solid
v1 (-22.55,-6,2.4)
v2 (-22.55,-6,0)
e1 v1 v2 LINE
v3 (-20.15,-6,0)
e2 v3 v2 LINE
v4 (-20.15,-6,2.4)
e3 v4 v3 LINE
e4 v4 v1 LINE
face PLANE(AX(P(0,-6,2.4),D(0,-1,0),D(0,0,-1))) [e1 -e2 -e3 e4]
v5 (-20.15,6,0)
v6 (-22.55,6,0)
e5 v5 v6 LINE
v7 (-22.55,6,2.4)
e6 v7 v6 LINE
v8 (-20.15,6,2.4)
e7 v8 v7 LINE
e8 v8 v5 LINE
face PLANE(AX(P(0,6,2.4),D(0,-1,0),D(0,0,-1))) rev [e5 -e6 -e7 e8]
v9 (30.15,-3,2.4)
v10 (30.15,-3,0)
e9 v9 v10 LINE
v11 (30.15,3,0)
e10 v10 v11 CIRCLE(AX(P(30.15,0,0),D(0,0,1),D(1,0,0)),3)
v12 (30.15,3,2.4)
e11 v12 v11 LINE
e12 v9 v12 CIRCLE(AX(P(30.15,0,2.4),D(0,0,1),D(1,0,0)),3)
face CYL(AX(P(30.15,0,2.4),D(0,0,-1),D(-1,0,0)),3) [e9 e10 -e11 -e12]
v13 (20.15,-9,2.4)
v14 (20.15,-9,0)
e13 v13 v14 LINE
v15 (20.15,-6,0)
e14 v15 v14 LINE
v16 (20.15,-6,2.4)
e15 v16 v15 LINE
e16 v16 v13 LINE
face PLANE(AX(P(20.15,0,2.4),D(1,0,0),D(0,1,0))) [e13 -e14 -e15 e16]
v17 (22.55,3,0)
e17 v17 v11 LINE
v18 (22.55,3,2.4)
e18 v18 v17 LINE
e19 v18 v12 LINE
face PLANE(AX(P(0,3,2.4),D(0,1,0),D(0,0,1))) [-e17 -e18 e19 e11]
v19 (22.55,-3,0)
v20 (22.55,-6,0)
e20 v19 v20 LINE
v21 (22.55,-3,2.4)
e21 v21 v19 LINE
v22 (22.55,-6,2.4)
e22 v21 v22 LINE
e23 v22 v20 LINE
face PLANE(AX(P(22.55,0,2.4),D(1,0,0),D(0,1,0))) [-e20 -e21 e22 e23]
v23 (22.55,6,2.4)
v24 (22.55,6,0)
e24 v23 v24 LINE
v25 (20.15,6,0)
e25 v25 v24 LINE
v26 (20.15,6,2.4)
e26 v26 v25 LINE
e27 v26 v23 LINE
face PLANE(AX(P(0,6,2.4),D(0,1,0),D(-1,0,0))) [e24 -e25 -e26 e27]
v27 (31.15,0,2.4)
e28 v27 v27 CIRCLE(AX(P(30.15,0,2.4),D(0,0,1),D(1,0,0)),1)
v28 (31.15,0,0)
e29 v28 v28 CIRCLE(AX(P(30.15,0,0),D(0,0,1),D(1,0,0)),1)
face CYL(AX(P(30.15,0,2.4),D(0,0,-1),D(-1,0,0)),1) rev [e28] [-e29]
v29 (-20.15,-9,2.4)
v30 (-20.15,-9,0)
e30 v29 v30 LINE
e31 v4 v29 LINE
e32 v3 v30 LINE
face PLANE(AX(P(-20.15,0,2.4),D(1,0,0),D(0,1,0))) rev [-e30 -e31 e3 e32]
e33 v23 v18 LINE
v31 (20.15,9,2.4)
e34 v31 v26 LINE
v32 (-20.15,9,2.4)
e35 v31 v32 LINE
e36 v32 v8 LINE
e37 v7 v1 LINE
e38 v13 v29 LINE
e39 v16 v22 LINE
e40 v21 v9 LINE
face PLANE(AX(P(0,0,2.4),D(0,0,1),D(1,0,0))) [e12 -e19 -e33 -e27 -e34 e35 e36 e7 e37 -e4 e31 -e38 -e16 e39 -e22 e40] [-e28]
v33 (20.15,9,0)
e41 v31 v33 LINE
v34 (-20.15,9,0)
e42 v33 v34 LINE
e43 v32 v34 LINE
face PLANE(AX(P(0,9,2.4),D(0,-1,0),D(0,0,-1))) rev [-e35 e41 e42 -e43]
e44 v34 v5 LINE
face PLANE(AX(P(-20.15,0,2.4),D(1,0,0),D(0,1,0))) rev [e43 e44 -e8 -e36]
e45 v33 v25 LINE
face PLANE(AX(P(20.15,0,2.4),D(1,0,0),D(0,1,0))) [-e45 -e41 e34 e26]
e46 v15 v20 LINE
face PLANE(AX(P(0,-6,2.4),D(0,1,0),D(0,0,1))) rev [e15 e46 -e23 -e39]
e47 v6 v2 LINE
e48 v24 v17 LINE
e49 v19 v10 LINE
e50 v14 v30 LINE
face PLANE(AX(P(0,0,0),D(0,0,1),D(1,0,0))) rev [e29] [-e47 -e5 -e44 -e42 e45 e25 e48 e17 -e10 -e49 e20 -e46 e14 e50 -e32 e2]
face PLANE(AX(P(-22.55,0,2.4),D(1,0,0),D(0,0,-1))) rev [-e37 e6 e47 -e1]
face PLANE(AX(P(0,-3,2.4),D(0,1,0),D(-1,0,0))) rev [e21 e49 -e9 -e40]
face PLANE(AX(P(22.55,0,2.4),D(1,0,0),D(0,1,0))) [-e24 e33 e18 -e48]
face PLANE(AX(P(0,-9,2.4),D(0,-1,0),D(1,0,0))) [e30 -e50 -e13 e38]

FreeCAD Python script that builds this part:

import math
import FreeCAD as App
import Part
import Sketcher
from FreeCAD import Vector

doc = App.newDocument("Part")
body = doc.addObject("PartDesign::Body", "Body")

# Sketch on XY plane
sketch1 = doc.addObject("Sketcher::SketchObject", "Sketch")
body.addObject(sketch1)
sketch1.AttachmentSupport = (doc.XY_Plane, [""])
sketch1.MapMode = "FlatFace"
sketch1.addGeometry([
    Part.LineSegment(Vector(22.6, -3, 0), Vector(30.1, -3, 0)),  # 0
    Part.ArcOfCircle(Part.Circle(Vector(30.1, 0, 0), Vector(0, 0, 1), 3), math.radians(-90), math.radians(90)),  # 1
    Part.LineSegment(Vector(30.1, 3, 0), Vector(22.6, 3, 0)),  # 2
    Part.LineSegment(Vector(22.6, 3, 0), Vector(22.6, 6, 0)),  # 3
    Part.LineSegment(Vector(22.6, 6, 0), Vector(20.1, 6, 0)),  # 4
    Part.LineSegment(Vector(20.1, 6, 0), Vector(20.1, 9, 0)),  # 5
    Part.LineSegment(Vector(20.1, 9, 0), Vector(-20.1, 9, 0)),  # 6
    Part.LineSegment(Vector(-20.1, 9, 0), Vector(-20.1, 6, 0)),  # 7
    Part.LineSegment(Vector(-20.1, 6, 0), Vector(-22.6, 6, 0)),  # 8
    Part.LineSegment(Vector(-22.6, 6, 0), Vector(-22.6, -6, 0)),  # 9
    Part.LineSegment(Vector(-22.6, -6, 0), Vector(-20.1, -6, 0)),  # 10
    Part.LineSegment(Vector(-20.1, -6, 0), Vector(-20.1, -9, 0)),  # 11
    Part.LineSegment(Vector(-20.1, -9, 0), Vector(20.1, -9, 0)),  # 12
    Part.LineSegment(Vector(20.1, -9, 0), Vector(20.1, -6, 0)),  # 13
    Part.LineSegment(Vector(20.1, -6, 0), Vector(22.6, -6, 0)),  # 14
    Part.LineSegment(Vector(22.6, -6, 0), Vector(22.6, -3, 0)),  # 15
    Part.Circle(Vector(30.1, 0, 0), Vector(0, 0, 1), 1),  # 16
], False)
sketch1.addConstraint([
    Sketcher.Constraint("Tangent", 0, 2, 1, 1),
    Sketcher.Constraint("Tangent", 1, 2, 2, 1),
    Sketcher.Constraint("Coincident", 2, 2, 3, 1),
    Sketcher.Constraint("Coincident", 3, 2, 4, 1),
    Sketcher.Constraint("Coincident", 4, 2, 5, 1),
    Sketcher.Constraint("Coincident", 5, 2, 6, 1),
    Sketcher.Constraint("Coincident", 6, 2, 7, 1),
    Sketcher.Constraint("Coincident", 7, 2, 8, 1),
    Sketcher.Constraint("Coincident", 8, 2, 9, 1),
    Sketcher.Constraint("Coincident", 9, 2, 10, 1),
    Sketcher.Constraint("Coincident", 10, 2, 11, 1),
    Sketcher.Constraint("Coincident", 11, 2, 12, 1),
    Sketcher.Constraint("Coincident", 12, 2, 13, 1),
    Sketcher.Constraint("Coincident", 13, 2, 14, 1),
    Sketcher.Constraint("Coincident", 14, 2, 15, 1),
    Sketcher.Constraint("Coincident", 15, 2, 0, 1),
    Sketcher.Constraint("Horizontal", 0),
    Sketcher.Constraint("Horizontal", 2),
    Sketcher.Constraint("Vertical", 3),
    Sketcher.Constraint("Horizontal", 4),
    Sketcher.Constraint("Vertical", 5),
    Sketcher.Constraint("Horizontal", 6),
    Sketcher.Constraint("Vertical", 7),
    Sketcher.Constraint("Horizontal", 8),
    Sketcher.Constraint("Vertical", 9),
    Sketcher.Constraint("Horizontal", 10),
    Sketcher.Constraint("Vertical", 11),
    Sketcher.Constraint("Horizontal", 12),
    Sketcher.Constraint("Vertical", 13),
    Sketcher.Constraint("Horizontal", 14),
    Sketcher.Constraint("Vertical", 15),
    Sketcher.Constraint("Coincident", 16, 3, 1, 3),
    Sketcher.Constraint("Symmetric", 3, 2, 9, 2, -1, 1),
    Sketcher.Constraint("Symmetric", 5, 2, 11, 2, -1, 1),
    Sketcher.Constraint("Symmetric", 7, 2, 13, 2, -1, 1),
    Sketcher.Constraint("Symmetric", 4, 2, 7, 2, -2),
    Sketcher.Constraint("Symmetric", 2, 2, 15, 2, -1),
    Sketcher.Constraint("Equal", 3, 5),
    Sketcher.Constraint("Diameter", 16, 2.0),
    Sketcher.Constraint("Radius", 1, 3.0),
    Sketcher.Constraint("DistanceY", 3, 1, 3, 2, 3.0),
    Sketcher.Constraint("DistanceX", 0, 1, 0, 2, 7.6),
    Sketcher.Constraint("DistanceX", 4, 2, 4, 1, 2.4),
    Sketcher.Constraint("DistanceX", 6, 2, 6, 1, 40.3),
])
pad1 = doc.addObject("PartDesign::Pad", "Pad")
body.addObject(pad1)
pad1.Profile = sketch1
pad1.Length = 2.4

doc.recompute()
